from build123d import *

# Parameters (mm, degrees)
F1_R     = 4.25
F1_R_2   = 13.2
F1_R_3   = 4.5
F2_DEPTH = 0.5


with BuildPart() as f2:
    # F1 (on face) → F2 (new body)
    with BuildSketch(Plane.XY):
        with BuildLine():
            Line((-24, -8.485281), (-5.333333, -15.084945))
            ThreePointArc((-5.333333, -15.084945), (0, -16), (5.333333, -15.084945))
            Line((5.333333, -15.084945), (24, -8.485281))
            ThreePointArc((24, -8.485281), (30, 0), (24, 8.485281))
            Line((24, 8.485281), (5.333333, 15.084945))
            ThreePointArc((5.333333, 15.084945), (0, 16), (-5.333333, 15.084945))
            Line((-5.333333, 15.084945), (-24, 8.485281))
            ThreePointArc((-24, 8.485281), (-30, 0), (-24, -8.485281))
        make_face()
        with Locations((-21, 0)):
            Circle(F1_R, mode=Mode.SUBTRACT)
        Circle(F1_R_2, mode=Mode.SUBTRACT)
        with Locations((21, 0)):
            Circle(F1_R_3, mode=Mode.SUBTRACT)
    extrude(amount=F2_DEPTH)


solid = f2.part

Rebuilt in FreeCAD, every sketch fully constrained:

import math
import FreeCAD as App
import Part
import Sketcher
from FreeCAD import Vector
Q = App.Units.Quantity

doc = App.newDocument("Part")
body = doc.addObject("PartDesign::Body", "Body")

# Sketch on XY plane
sketch1 = body.newObject("Sketcher::SketchObject", "Sketch")
sketch1.AttachmentSupport = (doc.getObject("XY_Plane"), [""])
sketch1.MapMode = "FlatFace"
sketch1.addGeometry([
    Part.LineSegment(Vector(-24, -8.5, 0), Vector(-5.3, -15.1, 0)),  # 0
    Part.ArcOfCircle(Part.Circle(Vector(0, 0, 0), Vector(0, 0, 1), 16), math.radians(-109), math.radians(-71)),  # 1
    Part.LineSegment(Vector(5.3, -15.1, 0), Vector(24, -8.5, 0)),  # 2
    Part.ArcOfCircle(Part.Circle(Vector(21, 0, 0), Vector(0, 0, 1), 9), math.radians(-71), math.radians(71)),  # 3
    Part.LineSegment(Vector(24, 8.5, 0), Vector(5.3, 15.1, 0)),  # 4
    Part.ArcOfCircle(Part.Circle(Vector(0, 0, 0), Vector(0, 0, 1), 16), math.radians(71), math.radians(109)),  # 5
    Part.LineSegment(Vector(-5.3, 15.1, 0), Vector(-24, 8.5, 0)),  # 6
    Part.ArcOfCircle(Part.Circle(Vector(-21, 0, 0), Vector(0, 0, 1), 9), math.radians(109), math.radians(251)),  # 7
    Part.Circle(Vector(-21, 0, 0), Vector(0, 0, 1), 4.2),  # 8
    Part.Circle(Vector(0, 0, 0), Vector(0, 0, 1), 13.2),  # 9
    Part.Circle(Vector(21, 0, 0), Vector(0, 0, 1), 4.5),  # 10
], False)
sketch1.addConstraint([
    Sketcher.Constraint("Tangent", 0, 2, 1, 1),
    Sketcher.Constraint("Tangent", 1, 2, 2, 1),
    Sketcher.Constraint("Tangent", 2, 2, 3, 1),
    Sketcher.Constraint("Tangent", 3, 2, 4, 1),
    Sketcher.Constraint("Tangent", 4, 2, 5, 1),
    Sketcher.Constraint("Tangent", 5, 2, 6, 1),
    Sketcher.Constraint("Tangent", 6, 2, 7, 1),
    Sketcher.Constraint("Tangent", 7, 2, 0, 1),
    Sketcher.Constraint("Coincident", 1, 3, -1, 1),
    Sketcher.Constraint("Coincident", 5, 3, -1, 1),
    Sketcher.Constraint("Coincident", 9, 3, -1, 1),
    Sketcher.Constraint("Coincident", 8, 3, 7, 3),
    Sketcher.Constraint("Coincident", 10, 3, 3, 3),
    Sketcher.Constraint("Equal", 1, 5),
    Sketcher.Constraint("Equal", 3, 7),
    Sketcher.Constraint("Symmetric", 3, 3, 7, 3, -1, 1),
    Sketcher.Constraint("PointOnObject", 3, 3, -1),
    Sketcher.Constraint("Diameter", 10, Q("9 mm")),
    Sketcher.Constraint("Radius", 3, Q("8.999999 mm")),
    Sketcher.Constraint("Diameter", 8, Q("8.5 mm")),
    Sketcher.Constraint("Diameter", 9, Q("26.4 mm")),
    Sketcher.Constraint("DistanceX", -1, 1, 3, 3, Q("21.000001 mm")),
    Sketcher.Constraint("DistanceX", -1, 1, 2, 2, Q("24 mm")),
])
pad1 = body.newObject("PartDesign::Pad", "Pad")
pad1.Profile = sketch1
pad1.Length = 0.5

doc.recompute()
